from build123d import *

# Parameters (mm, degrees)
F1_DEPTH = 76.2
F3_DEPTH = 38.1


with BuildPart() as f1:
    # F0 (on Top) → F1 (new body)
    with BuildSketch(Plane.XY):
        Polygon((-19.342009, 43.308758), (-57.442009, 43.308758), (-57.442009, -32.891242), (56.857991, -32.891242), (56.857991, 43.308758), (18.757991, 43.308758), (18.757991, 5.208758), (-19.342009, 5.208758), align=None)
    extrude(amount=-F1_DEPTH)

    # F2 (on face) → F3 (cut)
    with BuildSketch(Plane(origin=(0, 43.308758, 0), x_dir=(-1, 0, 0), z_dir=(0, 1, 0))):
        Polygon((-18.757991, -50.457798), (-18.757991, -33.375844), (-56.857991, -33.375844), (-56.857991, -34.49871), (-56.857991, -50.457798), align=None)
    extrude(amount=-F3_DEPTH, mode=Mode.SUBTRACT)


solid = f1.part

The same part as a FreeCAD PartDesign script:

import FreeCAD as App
import Part
import Sketcher
from FreeCAD import Vector
Q = App.Units.Quantity


def add_polygon(sketch, points):
    """Adds a closed chain of lines whose ends are joined by coincident constraints."""
    first, n = sketch.GeometryCount, len(points)
    for a, b in zip(points, points[1:] + points[:1]):
        sketch.addGeometry(Part.LineSegment(App.Vector(*a, 0), App.Vector(*b, 0)), False)
    for i in range(n):
        sketch.addConstraint(Sketcher.Constraint("Coincident", first + i, 2, first + (i + 1) % n, 1))

doc = App.newDocument("Part")
body = doc.addObject("PartDesign::Body", "Body")

# Sketch on XY plane
sketch1 = body.newObject("Sketcher::SketchObject", "Sketch")
sketch1.AttachmentSupport = (doc.getObject("XY_Plane"), [""])
sketch1.MapMode = "FlatFace"
add_polygon(sketch1, [(-19, 43), (-57, 43), (-57, -33), (57, -33), (57, 43), (19, 43), (19, 5), (-19, 5)])  # lines 0-7
sketch1.addConstraint(Sketcher.Constraint("Horizontal", 0))
sketch1.addConstraint(Sketcher.Constraint("Vertical", 1))
sketch1.addConstraint(Sketcher.Constraint("Horizontal", 2))
sketch1.addConstraint(Sketcher.Constraint("Vertical", 3))
sketch1.addConstraint(Sketcher.Constraint("Horizontal", 4))
sketch1.addConstraint(Sketcher.Constraint("Vertical", 5))
sketch1.addConstraint(Sketcher.Constraint("Horizontal", 6))
sketch1.addConstraint(Sketcher.Constraint("Vertical", 7))
sketch1.addConstraint(Sketcher.Constraint("Horizontal", 0, 2, 3, 2))
sketch1.addConstraint(Sketcher.Constraint("Equal", 0, 4))
sketch1.addConstraint(Sketcher.Constraint("Equal", 4, 6))
sketch1.addConstraint(Sketcher.Constraint("Equal", 6, 5))
sketch1.addConstraint(Sketcher.Constraint("DistanceY", 1, 2, 1, 1, Q("3 in")))
sketch1.addConstraint(Sketcher.Constraint("DistanceX", 0, 2, 0, 1, Q("1.5 in")))
sketch1.addConstraint(Sketcher.Constraint("DistanceX", 0, 2, -1, 1, 57.442009))
sketch1.addConstraint(Sketcher.Constraint("DistanceY", 1, 2, -1, 1, 32.891242))
pad1 = body.newObject("PartDesign::Pad", "Pad")
pad1.Profile = sketch1
pad1.Length = Q("3 in")
pad1.Reversed = True

# Sketch on XZ plane
sketch2 = body.newObject("Sketcher::SketchObject", "Sketch001")
sketch2.AttachmentSupport = (doc.getObject("XZ_Plane"), [""])
sketch2.MapMode = "FlatFace"
sketch2.AttachmentOffset = App.Placement(Vector(0, 0, -43.308758), App.Rotation())
add_polygon(sketch2, [(19, -50), (19, -33), (57, -33), (57, -50)])  # lines 0-3
sketch2.addConstraint(Sketcher.Constraint("Vertical", 0))
sketch2.addConstraint(Sketcher.Constraint("Horizontal", 1))
sketch2.addConstraint(Sketcher.Constraint("Vertical", 2))
sketch2.addConstraint(Sketcher.Constraint("Horizontal", 3))
sketch2.addConstraint(Sketcher.Constraint("DistanceX", 1, 1, 1, 2, Q("1.5 in")))
sketch2.addConstraint(Sketcher.Constraint("DistanceY", 0, 1, 0, 2, 17.081954))
sketch2.addConstraint(Sketcher.Constraint("DistanceX", -1, 1, 0, 2, 18.757991))
sketch2.addConstraint(Sketcher.Constraint("DistanceY", 0, 2, -1, 1, 33.375844))
pocket1 = body.newObject("PartDesign::Pocket", "Pocket")
pocket1.Profile = sketch2
pocket1.Length = Q("1.5 in")
pocket1.Reversed = True

doc.recompute()
